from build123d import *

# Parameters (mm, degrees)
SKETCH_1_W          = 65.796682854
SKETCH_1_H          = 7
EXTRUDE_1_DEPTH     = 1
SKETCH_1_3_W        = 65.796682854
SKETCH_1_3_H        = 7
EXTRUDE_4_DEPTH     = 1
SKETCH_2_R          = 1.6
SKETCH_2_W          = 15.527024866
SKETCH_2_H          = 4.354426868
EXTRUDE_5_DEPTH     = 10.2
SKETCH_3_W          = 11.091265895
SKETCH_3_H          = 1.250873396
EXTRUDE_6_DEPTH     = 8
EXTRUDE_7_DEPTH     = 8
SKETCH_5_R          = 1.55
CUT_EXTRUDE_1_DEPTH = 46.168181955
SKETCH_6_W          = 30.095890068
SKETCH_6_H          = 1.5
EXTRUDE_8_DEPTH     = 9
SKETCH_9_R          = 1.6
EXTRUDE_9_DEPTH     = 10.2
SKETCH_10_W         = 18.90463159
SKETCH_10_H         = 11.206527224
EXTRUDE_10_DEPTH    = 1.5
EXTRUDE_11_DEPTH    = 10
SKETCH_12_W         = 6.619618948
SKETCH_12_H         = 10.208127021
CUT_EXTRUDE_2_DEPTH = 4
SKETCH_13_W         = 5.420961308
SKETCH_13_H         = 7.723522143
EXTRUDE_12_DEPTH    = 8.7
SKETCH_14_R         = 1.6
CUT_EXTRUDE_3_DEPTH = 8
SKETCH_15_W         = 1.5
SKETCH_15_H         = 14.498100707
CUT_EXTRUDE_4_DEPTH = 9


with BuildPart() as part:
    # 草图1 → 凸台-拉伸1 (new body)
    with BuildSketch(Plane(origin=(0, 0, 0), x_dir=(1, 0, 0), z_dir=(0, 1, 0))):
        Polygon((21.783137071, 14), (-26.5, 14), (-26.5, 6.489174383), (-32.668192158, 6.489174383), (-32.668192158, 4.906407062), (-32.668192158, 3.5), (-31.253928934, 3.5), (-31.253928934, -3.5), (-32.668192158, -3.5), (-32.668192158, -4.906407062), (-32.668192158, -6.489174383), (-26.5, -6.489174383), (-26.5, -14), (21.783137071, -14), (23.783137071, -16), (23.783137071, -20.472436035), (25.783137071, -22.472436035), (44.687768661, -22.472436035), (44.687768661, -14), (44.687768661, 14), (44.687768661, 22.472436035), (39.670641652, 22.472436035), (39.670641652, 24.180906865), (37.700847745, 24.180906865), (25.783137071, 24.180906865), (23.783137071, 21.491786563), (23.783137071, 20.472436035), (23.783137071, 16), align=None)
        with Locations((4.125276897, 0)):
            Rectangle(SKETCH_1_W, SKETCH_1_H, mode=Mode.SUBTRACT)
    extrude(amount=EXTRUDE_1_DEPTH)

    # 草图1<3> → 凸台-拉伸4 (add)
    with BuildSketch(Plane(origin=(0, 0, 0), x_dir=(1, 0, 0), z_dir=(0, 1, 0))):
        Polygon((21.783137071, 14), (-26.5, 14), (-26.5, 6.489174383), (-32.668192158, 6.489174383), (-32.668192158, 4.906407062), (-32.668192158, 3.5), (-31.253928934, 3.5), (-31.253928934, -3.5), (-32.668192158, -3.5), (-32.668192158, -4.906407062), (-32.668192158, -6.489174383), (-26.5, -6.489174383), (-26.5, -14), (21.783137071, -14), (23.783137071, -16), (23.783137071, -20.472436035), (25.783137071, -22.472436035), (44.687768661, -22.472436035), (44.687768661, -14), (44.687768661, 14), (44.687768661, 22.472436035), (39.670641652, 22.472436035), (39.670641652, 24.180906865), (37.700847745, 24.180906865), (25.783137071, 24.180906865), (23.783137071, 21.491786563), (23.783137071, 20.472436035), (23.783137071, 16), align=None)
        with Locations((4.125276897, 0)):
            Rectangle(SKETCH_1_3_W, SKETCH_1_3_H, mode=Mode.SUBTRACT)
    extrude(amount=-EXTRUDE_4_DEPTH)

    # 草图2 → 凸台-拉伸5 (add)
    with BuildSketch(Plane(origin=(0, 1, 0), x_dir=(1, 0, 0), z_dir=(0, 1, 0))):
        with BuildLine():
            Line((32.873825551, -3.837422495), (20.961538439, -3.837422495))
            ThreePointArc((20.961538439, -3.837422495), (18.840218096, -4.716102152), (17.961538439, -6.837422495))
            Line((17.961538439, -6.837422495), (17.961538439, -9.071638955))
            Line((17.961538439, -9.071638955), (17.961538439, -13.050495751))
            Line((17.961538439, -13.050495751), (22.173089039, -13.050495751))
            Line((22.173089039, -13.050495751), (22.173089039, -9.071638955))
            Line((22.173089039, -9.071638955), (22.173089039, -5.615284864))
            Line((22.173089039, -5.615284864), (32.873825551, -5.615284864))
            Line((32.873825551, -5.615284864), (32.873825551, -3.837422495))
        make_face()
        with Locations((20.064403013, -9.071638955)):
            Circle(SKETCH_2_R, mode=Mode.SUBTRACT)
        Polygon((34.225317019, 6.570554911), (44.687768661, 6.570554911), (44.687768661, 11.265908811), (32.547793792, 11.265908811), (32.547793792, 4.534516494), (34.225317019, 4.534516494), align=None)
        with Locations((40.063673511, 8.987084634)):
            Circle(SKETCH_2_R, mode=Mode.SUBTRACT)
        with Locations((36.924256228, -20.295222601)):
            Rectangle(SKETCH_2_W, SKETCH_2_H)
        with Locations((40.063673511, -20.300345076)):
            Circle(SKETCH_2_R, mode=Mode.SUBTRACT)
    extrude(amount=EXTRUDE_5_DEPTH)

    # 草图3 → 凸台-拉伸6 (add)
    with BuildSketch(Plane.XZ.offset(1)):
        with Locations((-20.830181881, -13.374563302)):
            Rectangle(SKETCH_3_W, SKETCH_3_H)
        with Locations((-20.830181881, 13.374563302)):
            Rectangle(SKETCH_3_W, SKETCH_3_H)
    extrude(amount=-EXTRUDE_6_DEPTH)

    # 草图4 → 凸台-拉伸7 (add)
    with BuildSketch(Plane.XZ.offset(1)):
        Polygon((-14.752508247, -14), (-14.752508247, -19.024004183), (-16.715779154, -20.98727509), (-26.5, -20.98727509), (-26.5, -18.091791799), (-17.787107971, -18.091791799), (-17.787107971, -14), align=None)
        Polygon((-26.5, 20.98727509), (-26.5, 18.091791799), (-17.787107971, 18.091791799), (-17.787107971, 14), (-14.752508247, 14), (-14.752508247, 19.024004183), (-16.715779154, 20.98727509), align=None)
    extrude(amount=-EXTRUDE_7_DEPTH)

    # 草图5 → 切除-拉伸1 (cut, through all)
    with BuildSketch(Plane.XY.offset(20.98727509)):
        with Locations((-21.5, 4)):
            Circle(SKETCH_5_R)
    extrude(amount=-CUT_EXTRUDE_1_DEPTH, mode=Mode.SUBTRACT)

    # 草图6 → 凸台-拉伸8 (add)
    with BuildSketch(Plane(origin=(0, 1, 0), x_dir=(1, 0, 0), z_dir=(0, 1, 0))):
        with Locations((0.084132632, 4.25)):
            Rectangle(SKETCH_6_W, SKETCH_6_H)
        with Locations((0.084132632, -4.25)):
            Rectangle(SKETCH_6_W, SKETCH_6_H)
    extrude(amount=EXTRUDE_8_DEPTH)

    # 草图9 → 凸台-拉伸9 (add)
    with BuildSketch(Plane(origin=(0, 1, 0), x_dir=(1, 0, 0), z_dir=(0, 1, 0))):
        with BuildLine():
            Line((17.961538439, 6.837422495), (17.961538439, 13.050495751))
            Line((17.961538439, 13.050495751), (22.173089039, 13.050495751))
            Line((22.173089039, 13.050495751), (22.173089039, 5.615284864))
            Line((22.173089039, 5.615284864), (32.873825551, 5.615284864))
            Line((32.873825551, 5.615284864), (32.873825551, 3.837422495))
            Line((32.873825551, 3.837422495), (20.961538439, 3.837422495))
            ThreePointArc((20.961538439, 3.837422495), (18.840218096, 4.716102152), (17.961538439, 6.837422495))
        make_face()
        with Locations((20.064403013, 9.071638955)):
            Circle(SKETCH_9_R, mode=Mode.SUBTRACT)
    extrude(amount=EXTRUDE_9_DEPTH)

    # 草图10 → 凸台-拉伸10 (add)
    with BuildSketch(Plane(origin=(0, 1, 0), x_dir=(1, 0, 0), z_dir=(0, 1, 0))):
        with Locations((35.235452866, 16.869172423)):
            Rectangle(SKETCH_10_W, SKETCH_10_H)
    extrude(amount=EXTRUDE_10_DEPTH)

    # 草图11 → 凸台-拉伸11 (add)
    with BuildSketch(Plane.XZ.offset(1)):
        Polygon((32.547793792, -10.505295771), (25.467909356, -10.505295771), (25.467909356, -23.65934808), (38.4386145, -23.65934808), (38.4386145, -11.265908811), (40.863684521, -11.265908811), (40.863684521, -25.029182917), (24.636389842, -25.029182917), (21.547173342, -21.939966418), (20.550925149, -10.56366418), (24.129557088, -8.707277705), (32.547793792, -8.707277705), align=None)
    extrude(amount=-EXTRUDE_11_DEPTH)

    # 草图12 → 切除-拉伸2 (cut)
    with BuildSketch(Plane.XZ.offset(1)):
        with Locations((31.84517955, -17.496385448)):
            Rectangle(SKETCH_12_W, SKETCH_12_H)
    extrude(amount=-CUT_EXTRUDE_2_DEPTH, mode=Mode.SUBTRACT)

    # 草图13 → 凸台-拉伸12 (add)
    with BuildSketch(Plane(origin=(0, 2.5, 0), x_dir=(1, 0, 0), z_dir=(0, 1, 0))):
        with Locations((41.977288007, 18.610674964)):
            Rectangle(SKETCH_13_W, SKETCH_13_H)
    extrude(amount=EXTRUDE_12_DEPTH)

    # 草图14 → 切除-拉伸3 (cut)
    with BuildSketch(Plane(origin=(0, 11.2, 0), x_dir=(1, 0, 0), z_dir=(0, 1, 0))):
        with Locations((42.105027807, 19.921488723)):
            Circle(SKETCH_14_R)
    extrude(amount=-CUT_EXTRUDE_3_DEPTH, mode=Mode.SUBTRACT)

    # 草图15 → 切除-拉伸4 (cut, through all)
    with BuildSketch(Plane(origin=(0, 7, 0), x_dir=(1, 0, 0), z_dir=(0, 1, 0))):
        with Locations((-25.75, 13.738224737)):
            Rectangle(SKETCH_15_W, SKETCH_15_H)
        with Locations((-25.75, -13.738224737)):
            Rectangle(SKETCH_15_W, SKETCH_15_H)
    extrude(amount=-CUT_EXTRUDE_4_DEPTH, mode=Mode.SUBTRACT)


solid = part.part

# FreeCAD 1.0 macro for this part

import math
import FreeCAD as App
import Part
import Sketcher

V = App.Vector
Q = App.Units.Quantity


def add_polygon(sketch, points):
    """Adds a closed chain of lines whose ends are joined by coincident constraints."""
    first, n = sketch.GeometryCount, len(points)
    for a, b in zip(points, points[1:] + points[:1]):
        sketch.addGeometry(Part.LineSegment(App.Vector(*a, 0), App.Vector(*b, 0)), False)
    for i in range(n):
        sketch.addConstraint(Sketcher.Constraint("Coincident", first + i, 2, first + (i + 1) % n, 1))

doc = App.newDocument("Part")
body = doc.addObject("PartDesign::Body", "Body")

# Sketch on XZ plane
sketch1 = body.newObject("Sketcher::SketchObject", "Sketch")
sketch1.AttachmentSupport = (doc.getObject("XZ_Plane"), [""])
sketch1.MapMode = "FlatFace"
add_polygon(sketch1, [(21.8, -14), (-26.5, -14), (-26.5, -6.5), (-32.7, -6.5), (-32.7, -3.5), (-31.3, -3.5), (-31.3, 3.5), (-32.7, 3.5), (-32.7, 6.5), (-26.5, 6.5), (-26.5, 14), (21.8, 14), (23.8, 16), (23.8, 20.5), (25.8, 22.5), (44.7, 22.5), (44.7, -22.5), (39.7, -22.5), (39.7, -24.2), (25.8, -24.2), (23.8, -21.5), (23.8, -16)])  # lines 0-21
add_polygon(sketch1, [(37, 3.5), (-28.8, 3.5), (-28.8, -3.5), (37, -3.5)])  # lines 22-25
sketch1.addConstraint(Sketcher.Constraint("Horizontal", 0))
sketch1.addConstraint(Sketcher.Constraint("Vertical", 1))
sketch1.addConstraint(Sketcher.Constraint("Horizontal", 2))
sketch1.addConstraint(Sketcher.Constraint("Vertical", 3))
sketch1.addConstraint(Sketcher.Constraint("Horizontal", 4))
sketch1.addConstraint(Sketcher.Constraint("Vertical", 5))
sketch1.addConstraint(Sketcher.Constraint("Horizontal", 6))
sketch1.addConstraint(Sketcher.Constraint("Vertical", 7))
sketch1.addConstraint(Sketcher.Constraint("Horizontal", 8))
sketch1.addConstraint(Sketcher.Constraint("Vertical", 9))
sketch1.addConstraint(Sketcher.Constraint("Horizontal", 10))
sketch1.addConstraint(Sketcher.Constraint("Vertical", 12))
sketch1.addConstraint(Sketcher.Constraint("Horizontal", 14))
sketch1.addConstraint(Sketcher.Constraint("Vertical", 15))
sketch1.addConstraint(Sketcher.Constraint("Horizontal", 16))
sketch1.addConstraint(Sketcher.Constraint("Vertical", 17))
sketch1.addConstraint(Sketcher.Constraint("Horizontal", 18))
sketch1.addConstraint(Sketcher.Constraint("Vertical", 20))
sketch1.addConstraint(Sketcher.Constraint("Horizontal", 22))
sketch1.addConstraint(Sketcher.Constraint("Vertical", 23))
sketch1.addConstraint(Sketcher.Constraint("Horizontal", 24))
sketch1.addConstraint(Sketcher.Constraint("Vertical", 25))
sketch1.addConstraint(Sketcher.Constraint("Symmetric", 3, 2, 6, 2, -1))
sketch1.addConstraint(Sketcher.Constraint("Symmetric", 1, 2, 8, 2, -1))
sketch1.addConstraint(Sketcher.Constraint("Symmetric", 11, 2, 20, 2, -1))
sketch1.addConstraint(Sketcher.Constraint("Symmetric", 10, 2, 21, 2, -1))
sketch1.addConstraint(Sketcher.Constraint("Parallel", 11, 13))
sketch1.addConstraint(Sketcher.Constraint("Perpendicular", 13, 21))
sketch1.addConstraint(Sketcher.Constraint("Horizontal", 6, 2, 22, 2))
sketch1.addConstraint(Sketcher.Constraint("Horizontal", 4, 2, 23, 2))
sketch1.addConstraint(Sketcher.Constraint("Vertical", 13, 2, 18, 2))
sketch1.addConstraint(Sketcher.Constraint("Equal", 11, 13))
sketch1.addConstraint(Sketcher.Constraint("DistanceY", 5, 1, 5, 2, Q("7 mm")))
sketch1.addConstraint(Sketcher.Constraint("DistanceY", 0, 2, -1, 1, Q("14 mm")))
sketch1.addConstraint(Sketcher.Constraint("DistanceY", -1, 1, 11, 2, Q("16 mm")))
sketch1.addConstraint(Sketcher.Constraint("DistanceX", 0, 2, -1, 1, Q("26.5 mm")))
sketch1.addConstraint(Sketcher.Constraint("DistanceX", 14, 1, 14, 2, Q("18.904632 mm")))
sketch1.addConstraint(Sketcher.Constraint("DistanceY", 17, 2, 17, 1, Q("1.708471 mm")))
sketch1.addConstraint(Sketcher.Constraint("DistanceX", 0, 2, 0, 1, Q("48.283137 mm")))
sketch1.addConstraint(Sketcher.Constraint("DistanceX", 2, 2, 2, 1, Q("6.168192 mm")))
sketch1.addConstraint(Sketcher.Constraint("DistanceX", 4, 1, 4, 2, Q("1.414263 mm")))
sketch1.addConstraint(Sketcher.Constraint("DistanceX", 16, 2, 16, 1, Q("5.017127 mm")))
sketch1.addConstraint(Sketcher.Constraint("DistanceX", 22, 2, 22, 1, Q("65.796683 mm")))
sketch1.addConstraint(Sketcher.Constraint("DistanceY", 1, 1, 1, 2, Q("7.510826 mm")))
sketch1.addConstraint(Sketcher.Constraint("DistanceY", 12, 1, 12, 2, Q("4.472436 mm")))
sketch1.addConstraint(Sketcher.Constraint("DistanceY", 15, 2, 15, 1, Q("44.944872 mm")))
sketch1.addConstraint(Sketcher.Constraint("DistanceY", 20, 1, 20, 2, Q("5.491787 mm")))
sketch1.addConstraint(Sketcher.Constraint("DistanceX", -1, 1, 24, 2, Q("37.023618 mm")))
pad1 = body.newObject("PartDesign::Pad", "Pad")
pad1.Profile = sketch1
pad1.Length = 1
pad1.Reversed = True

# Sketch on XZ plane
sketch2 = body.newObject("Sketcher::SketchObject", "Sketch001")
sketch2.AttachmentSupport = (doc.getObject("XZ_Plane"), [""])
sketch2.MapMode = "FlatFace"
add_polygon(sketch2, [(21.8, -14), (-26.5, -14), (-26.5, -6.5), (-32.7, -6.5), (-32.7, -3.5), (-31.3, -3.5), (-31.3, 3.5), (-32.7, 3.5), (-32.7, 6.5), (-26.5, 6.5), (-26.5, 14), (21.8, 14), (23.8, 16), (23.8, 20.5), (25.8, 22.5), (44.7, 22.5), (44.7, -22.5), (39.7, -22.5), (39.7, -24.2), (25.8, -24.2), (23.8, -21.5), (23.8, -16)])  # lines 0-21
add_polygon(sketch2, [(37, 3.5), (-28.8, 3.5), (-28.8, -3.5), (37, -3.5)])  # lines 22-25
sketch2.addConstraint(Sketcher.Constraint("Horizontal", 0))
sketch2.addConstraint(Sketcher.Constraint("Vertical", 1))
sketch2.addConstraint(Sketcher.Constraint("Horizontal", 2))
sketch2.addConstraint(Sketcher.Constraint("Vertical", 3))
sketch2.addConstraint(Sketcher.Constraint("Horizontal", 4))
sketch2.addConstraint(Sketcher.Constraint("Vertical", 5))
sketch2.addConstraint(Sketcher.Constraint("Horizontal", 6))
sketch2.addConstraint(Sketcher.Constraint("Vertical", 7))
sketch2.addConstraint(Sketcher.Constraint("Horizontal", 8))
sketch2.addConstraint(Sketcher.Constraint("Vertical", 9))
sketch2.addConstraint(Sketcher.Constraint("Horizontal", 10))
sketch2.addConstraint(Sketcher.Constraint("Vertical", 12))
sketch2.addConstraint(Sketcher.Constraint("Horizontal", 14))
sketch2.addConstraint(Sketcher.Constraint("Vertical", 15))
sketch2.addConstraint(Sketcher.Constraint("Horizontal", 16))
sketch2.addConstraint(Sketcher.Constraint("Vertical", 17))
sketch2.addConstraint(Sketcher.Constraint("Horizontal", 18))
sketch2.addConstraint(Sketcher.Constraint("Vertical", 20))
sketch2.addConstraint(Sketcher.Constraint("Horizontal", 22))
sketch2.addConstraint(Sketcher.Constraint("Vertical", 23))
sketch2.addConstraint(Sketcher.Constraint("Horizontal", 24))
sketch2.addConstraint(Sketcher.Constraint("Vertical", 25))
sketch2.addConstraint(Sketcher.Constraint("Symmetric", 3, 2, 6, 2, -1))
sketch2.addConstraint(Sketcher.Constraint("Symmetric", 1, 2, 8, 2, -1))
sketch2.addConstraint(Sketcher.Constraint("Symmetric", 11, 2, 20, 2, -1))
sketch2.addConstraint(Sketcher.Constraint("Symmetric", 10, 2, 21, 2, -1))
sketch2.addConstraint(Sketcher.Constraint("Parallel", 11, 13))
sketch2.addConstraint(Sketcher.Constraint("Perpendicular", 13, 21))
sketch2.addConstraint(Sketcher.Constraint("Horizontal", 6, 2, 22, 2))
sketch2.addConstraint(Sketcher.Constraint("Horizontal", 4, 2, 23, 2))
sketch2.addConstraint(Sketcher.Constraint("Vertical", 13, 2, 18, 2))
sketch2.addConstraint(Sketcher.Constraint("Equal", 11, 13))
sketch2.addConstraint(Sketcher.Constraint("DistanceY", 5, 1, 5, 2, Q("7 mm")))
sketch2.addConstraint(Sketcher.Constraint("DistanceY", 0, 2, -1, 1, Q("14 mm")))
sketch2.addConstraint(Sketcher.Constraint("DistanceY", -1, 1, 11, 2, Q("16 mm")))
sketch2.addConstraint(Sketcher.Constraint("DistanceX", 0, 2, -1, 1, Q("26.5 mm")))
sketch2.addConstraint(Sketcher.Constraint("DistanceX", 14, 1, 14, 2, Q("18.904632 mm")))
sketch2.addConstraint(Sketcher.Constraint("DistanceY", 17, 2, 17, 1, Q("1.708471 mm")))
sketch2.addConstraint(Sketcher.Constraint("DistanceX", 0, 2, 0, 1, Q("48.283137 mm")))
sketch2.addConstraint(Sketcher.Constraint("DistanceX", 2, 2, 2, 1, Q("6.168192 mm")))
sketch2.addConstraint(Sketcher.Constraint("DistanceX", 4, 1, 4, 2, Q("1.414263 mm")))
sketch2.addConstraint(Sketcher.Constraint("DistanceX", 16, 2, 16, 1, Q("5.017127 mm")))
sketch2.addConstraint(Sketcher.Constraint("DistanceX", 22, 2, 22, 1, Q("65.796683 mm")))
sketch2.addConstraint(Sketcher.Constraint("DistanceY", 1, 1, 1, 2, Q("7.510826 mm")))
sketch2.addConstraint(Sketcher.Constraint("DistanceY", 12, 1, 12, 2, Q("4.472436 mm")))
sketch2.addConstraint(Sketcher.Constraint("DistanceY", 15, 2, 15, 1, Q("44.944872 mm")))
sketch2.addConstraint(Sketcher.Constraint("DistanceY", 20, 1, 20, 2, Q("5.491787 mm")))
sketch2.addConstraint(Sketcher.Constraint("DistanceX", -1, 1, 24, 2, Q("37.023618 mm")))
pad2 = body.newObject("PartDesign::Pad", "Pad001")
pad2.Profile = sketch2
pad2.Length = 1

# Sketch on XZ plane
sketch3 = body.newObject("Sketcher::SketchObject", "Sketch002")
sketch3.AttachmentSupport = (doc.getObject("XZ_Plane"), [""])
sketch3.MapMode = "FlatFace"
sketch3.AttachmentOffset = App.Placement(V(0, 0, -1), App.Rotation())
sketch3.addGeometry(Part.LineSegment(V(32.9, 3.8, 0), V(21, 3.8, 0)), False)  # 0
sketch3.addGeometry(Part.ArcOfCircle(Part.Circle(V(21, 6.8, 0), V(0, 0, 1), 3), math.radians(-180), math.radians(-90)), False)  # 1
sketch3.addGeometry(Part.LineSegment(V(18, 6.8, 0), V(18, 13.1, 0)), False)  # 2
sketch3.addGeometry(Part.LineSegment(V(18, 13.1, 0), V(22.2, 13.1, 0)), False)  # 3
sketch3.addGeometry(Part.LineSegment(V(22.2, 13.1, 0), V(22.2, 5.6, 0)), False)  # 4
sketch3.addGeometry(Part.LineSegment(V(22.2, 5.6, 0), V(32.9, 5.6, 0)), False)  # 5
sketch3.addGeometry(Part.LineSegment(V(32.9, 5.6, 0), V(32.9, 3.8, 0)), False)  # 6
sketch3.addGeometry(Part.Circle(V(20.1, 9.1, 0), V(0, 0, 1), 1.6), False)  # 7
add_polygon(sketch3, [(34.2, -6.6), (44.7, -6.6), (44.7, -11.3), (32.5, -11.3), (32.5, -4.5), (34.2, -4.5)])  # lines 8-13
sketch3.addGeometry(Part.Circle(V(40.1, -9, 0), V(0, 0, 1), 1.6), False)  # 14
add_polygon(sketch3, [(29.2, 18.1), (29.2, 22.5), (44.7, 22.5), (44.7, 18.1)])  # lines 15-18
sketch3.addGeometry(Part.Circle(V(40.1, 20.3, 0), V(0, 0, 1), 1.6), False)  # 19
sketch3.addConstraint(Sketcher.Constraint("Tangent", 0, 2, 1, 2))
sketch3.addConstraint(Sketcher.Constraint("Tangent", 1, 1, 2, 1))
sketch3.addConstraint(Sketcher.Constraint("Coincident", 2, 2, 3, 1))
sketch3.addConstraint(Sketcher.Constraint("Coincident", 3, 2, 4, 1))
sketch3.addConstraint(Sketcher.Constraint("Coincident", 4, 2, 5, 1))
sketch3.addConstraint(Sketcher.Constraint("Coincident", 5, 2, 6, 1))
sketch3.addConstraint(Sketcher.Constraint("Coincident", 6, 2, 0, 1))
sketch3.addConstraint(Sketcher.Constraint("Horizontal", 0))
sketch3.addConstraint(Sketcher.Constraint("Vertical", 2))
sketch3.addConstraint(Sketcher.Constraint("Horizontal", 3))
sketch3.addConstraint(Sketcher.Constraint("Vertical", 4))
sketch3.addConstraint(Sketcher.Constraint("Horizontal", 5))
sketch3.addConstraint(Sketcher.Constraint("Vertical", 6))
sketch3.addConstraint(Sketcher.Constraint("Horizontal", 8))
sketch3.addConstraint(Sketcher.Constraint("Vertical", 9))
sketch3.addConstraint(Sketcher.Constraint("Horizontal", 10))
sketch3.addConstraint(Sketcher.Constraint("Vertical", 11))
sketch3.addConstraint(Sketcher.Constraint("Horizontal", 12))
sketch3.addConstraint(Sketcher.Constraint("Vertical", 13))
sketch3.addConstraint(Sketcher.Constraint("Vertical", 15))
sketch3.addConstraint(Sketcher.Constraint("Horizontal", 16))
sketch3.addConstraint(Sketcher.Constraint("Vertical", 17))
sketch3.addConstraint(Sketcher.Constraint("Horizontal", 18))
sketch3.addConstraint(Sketcher.Constraint("Equal", 7, 14))
sketch3.addConstraint(Sketcher.Constraint("Equal", 14, 19))
sketch3.addConstraint(Sketcher.Constraint("Vertical", 14, 3, 19, 3))
sketch3.addConstraint(Sketcher.Constraint("Vertical", 9, 2, 16, 2))
sketch3.addConstraint(Sketcher.Constraint("Radius", 1, Q("3 mm")))
sketch3.addConstraint(Sketcher.Constraint("Diameter", 7, Q("3.2 mm")))
sketch3.addConstraint(Sketcher.Constraint("DistanceX", 3, 1, 3, 2, Q("4.211551 mm")))
sketch3.addConstraint(Sketcher.Constraint("DistanceX", 8, 1, 8, 2, Q("10.462452 mm")))
sketch3.addConstraint(Sketcher.Constraint("DistanceY", 4, 2, 4, 1, Q("7.435211 mm")))
sketch3.addConstraint(Sketcher.Constraint("DistanceY", 13, 2, 13, 1, Q("2.036038 mm")))
sketch3.addConstraint(Sketcher.Constraint("DistanceY", 11, 2, 5, 2, Q("10.149801 mm")))
sketch3.addConstraint(Sketcher.Constraint("DistanceX", 0, 2, 0, 1, Q("11.912287 mm")))
sketch3.addConstraint(Sketcher.Constraint("DistanceX", 10, 2, 10, 1, Q("12.139975 mm")))
sketch3.addConstraint(Sketcher.Constraint("DistanceX", 16, 1, 16, 2, Q("15.527025 mm")))
sketch3.addConstraint(Sketcher.Constraint("DistanceY", 2, 1, 2, 2, Q("6.213073 mm")))
sketch3.addConstraint(Sketcher.Constraint("DistanceY", 9, 2, 9, 1, Q("4.695354 mm")))
sketch3.addConstraint(Sketcher.Constraint("DistanceY", 15, 1, 15, 2, Q("4.354427 mm")))
sketch3.addConstraint(Sketcher.Constraint("DistanceX", -1, 1, 1, 3, Q("20.961538 mm")))
sketch3.addConstraint(Sketcher.Constraint("DistanceY", -1, 1, 7, 3, Q("9.071639 mm")))
sketch3.addConstraint(Sketcher.Constraint("DistanceX", -1, 1, 8, 2, Q("44.687769 mm")))
sketch3.addConstraint(Sketcher.Constraint("DistanceY", 9, 2, -1, 1, Q("11.265909 mm")))
sketch3.addConstraint(Sketcher.Constraint("DistanceY", -1, 1, 17, 2, Q("18.118009 mm")))
sketch3.addConstraint(Sketcher.Constraint("DistanceX", 7, 3, 14, 3, Q("19.99927 mm")))
sketch3.addConstraint(Sketcher.Constraint("DistanceY", 14, 3, 19, 3, Q("29.28743 mm")))
sketch3.addConstraint(Sketcher.Constraint("DistanceY", 2, 2, 19, 3, Q("7.249849 mm")))
sketch3.addConstraint(Sketcher.Constraint("DistanceX", 10, 2, 14, 3, Q("7.51588 mm")))
pad3 = body.newObject("PartDesign::Pad", "Pad002")
pad3.Profile = sketch3
pad3.Length = 10.2
pad3.Reversed = True

# Sketch on XZ plane
sketch4 = body.newObject("Sketcher::SketchObject", "Sketch003")
sketch4.AttachmentSupport = (doc.getObject("XZ_Plane"), [""])
sketch4.MapMode = "FlatFace"
sketch4.AttachmentOffset = App.Placement(V(0, 0, 1), App.Rotation())
add_polygon(sketch4, [(-26.4, -12.7), (-26.4, -14), (-15.3, -14), (-15.3, -12.7)])  # lines 0-3
add_polygon(sketch4, [(-26.4, 14), (-26.4, 12.7), (-15.3, 12.7), (-15.3, 14)])  # lines 4-7
sketch4.addConstraint(Sketcher.Constraint("Vertical", 0))
sketch4.addConstraint(Sketcher.Constraint("Horizontal", 1))
sketch4.addConstraint(Sketcher.Constraint("Vertical", 2))
sketch4.addConstraint(Sketcher.Constraint("Horizontal", 3))
sketch4.addConstraint(Sketcher.Constraint("Vertical", 4))
sketch4.addConstraint(Sketcher.Constraint("Horizontal", 5))
sketch4.addConstraint(Sketcher.Constraint("Vertical", 6))
sketch4.addConstraint(Sketcher.Constraint("Horizontal", 7))
sketch4.addConstraint(Sketcher.Constraint("Symmetric", 3, 2, 4, 2, -1))
sketch4.addConstraint(Sketcher.Constraint("Symmetric", 1, 2, 6, 2, -1))
sketch4.addConstraint(Sketcher.Constraint("DistanceY", 0, 2, -1, 1, Q("14 mm")))
sketch4.addConstraint(Sketcher.Constraint("DistanceX", 1, 1, 1, 2, Q("11.091266 mm")))
sketch4.addConstraint(Sketcher.Constraint("DistanceY", 0, 2, 0, 1, Q("1.250873 mm")))
sketch4.addConstraint(Sketcher.Constraint("DistanceX", 1, 2, -1, 1, Q("15.284549 mm")))
pad4 = body.newObject("PartDesign::Pad", "Pad003")
pad4.Profile = sketch4
pad4.Length = 8
pad4.Reversed = True

# Sketch on XZ plane
sketch5 = body.newObject("Sketcher::SketchObject", "Sketch004")
sketch5.AttachmentSupport = (doc.getObject("XZ_Plane"), [""])
sketch5.MapMode = "FlatFace"
sketch5.AttachmentOffset = App.Placement(V(0, 0, 1), App.Rotation())
add_polygon(sketch5, [(-14.8, -19), (-14.8, -14), (-17.8, -14), (-17.8, -18.1), (-26.5, -18.1), (-26.5, -21), (-16.7, -21)])  # lines 0-6
add_polygon(sketch5, [(-26.5, 21), (-26.5, 18.1), (-17.8, 18.1), (-17.8, 14), (-14.8, 14), (-14.8, 19), (-16.7, 21)])  # lines 7-13
sketch5.addConstraint(Sketcher.Constraint("Vertical", 0))
sketch5.addConstraint(Sketcher.Constraint("Horizontal", 1))
sketch5.addConstraint(Sketcher.Constraint("Vertical", 2))
sketch5.addConstraint(Sketcher.Constraint("Horizontal", 3))
sketch5.addConstraint(Sketcher.Constraint("Vertical", 4))
sketch5.addConstraint(Sketcher.Constraint("Horizontal", 5))
sketch5.addConstraint(Sketcher.Constraint("Vertical", 7))
sketch5.addConstraint(Sketcher.Constraint("Horizontal", 8))
sketch5.addConstraint(Sketcher.Constraint("Vertical", 9))
sketch5.addConstraint(Sketcher.Constraint("Horizontal", 10))
sketch5.addConstraint(Sketcher.Constraint("Vertical", 11))
sketch5.addConstraint(Sketcher.Constraint("Horizontal", 13))
sketch5.addConstraint(Sketcher.Constraint("Symmetric", 3, 2, 7, 2, -1))
sketch5.addConstraint(Sketcher.Constraint("Symmetric", 1, 2, 9, 2, -1))
sketch5.addConstraint(Sketcher.Constraint("Symmetric", 6, 2, 11, 2, -1))
sketch5.addConstraint(Sketcher.Constraint("Symmetric", 5, 2, 12, 2, -1))
sketch5.addConstraint(Sketcher.Constraint("Perpendicular", 6, 12))
sketch5.addConstraint(Sketcher.Constraint("DistanceY", 0, 2, -1, 1, Q("14 mm")))
sketch5.addConstraint(Sketcher.Constraint("DistanceX", 3, 2, -1, 1, Q("26.5 mm")))
sketch5.addConstraint(Sketcher.Constraint("DistanceX", 1, 2, 1, 1, Q("3.0346 mm")))
sketch5.addConstraint(Sketcher.Constraint("DistanceX", 5, 1, 5, 2, Q("9.784221 mm")))
sketch5.addConstraint(Sketcher.Constraint("DistanceY", 2, 2, 2, 1, Q("4.091792 mm")))
sketch5.addConstraint(Sketcher.Constraint("DistanceX", 3, 2, 3, 1, Q("8.712892 mm")))
sketch5.addConstraint(Sketcher.Constraint("DistanceY", 0, 1, 0, 2, Q("5.024004 mm")))
pad5 = body.newObject("PartDesign::Pad", "Pad004")
pad5.Profile = sketch5
pad5.Length = 8
pad5.Reversed = True

# Sketch on XY plane
sketch6 = body.newObject("Sketcher::SketchObject", "Sketch005")
sketch6.AttachmentSupport = (doc.getObject("XY_Plane"), [""])
sketch6.MapMode = "FlatFace"
sketch6.AttachmentOffset = App.Placement(V(0, 0, 20.987275), App.Rotation())
sketch6.addGeometry(Part.Circle(V(-21.5, 4, 0), V(0, 0, 1), 1.6), False)
sketch6.addConstraint(Sketcher.Constraint("Diameter", 0, Q("3.1 mm")))
sketch6.addConstraint(Sketcher.Constraint("DistanceY", -1, 1, 0, 3, Q("4 mm")))
sketch6.addConstraint(Sketcher.Constraint("DistanceX", 0, 3, -1, 1, Q("21.5 mm")))
pocket1 = body.newObject("PartDesign::Pocket", "Pocket")
pocket1.Profile = sketch6
pocket1.Type = "ThroughAll"

# Sketch on XZ plane
sketch7 = body.newObject("Sketcher::SketchObject", "Sketch006")
sketch7.AttachmentSupport = (doc.getObject("XZ_Plane"), [""])
sketch7.MapMode = "FlatFace"
sketch7.AttachmentOffset = App.Placement(V(0, 0, -1), App.Rotation())
add_polygon(sketch7, [(-15, -5), (-15, -3.5), (15.1, -3.5), (15.1, -5)])  # lines 0-3
add_polygon(sketch7, [(-15, 3.5), (-15, 5), (15.1, 5), (15.1, 3.5)])  # lines 4-7
sketch7.addConstraint(Sketcher.Constraint("Vertical", 0))
sketch7.addConstraint(Sketcher.Constraint("Horizontal", 1))
sketch7.addConstraint(Sketcher.Constraint("Vertical", 2))
sketch7.addConstraint(Sketcher.Constraint("Horizontal", 3))
sketch7.addConstraint(Sketcher.Constraint("Vertical", 4))
sketch7.addConstraint(Sketcher.Constraint("Horizontal", 5))
sketch7.addConstraint(Sketcher.Constraint("Vertical", 6))
sketch7.addConstraint(Sketcher.Constraint("Horizontal", 7))
sketch7.addConstraint(Sketcher.Constraint("Symmetric", 3, 2, 4, 2, -1))
sketch7.addConstraint(Sketcher.Constraint("Symmetric", 1, 2, 6, 2, -1))
sketch7.addConstraint(Sketcher.Constraint("DistanceY", 0, 1, 0, 2, Q("1.5 mm")))
sketch7.addConstraint(Sketcher.Constraint("DistanceY", 2, 2, -1, 1, Q("5 mm")))
sketch7.addConstraint(Sketcher.Constraint("DistanceX", 1, 1, 1, 2, Q("30.09589 mm")))
sketch7.addConstraint(Sketcher.Constraint("DistanceX", 0, 2, -1, 1, Q("14.963812 mm")))
pad6 = body.newObject("PartDesign::Pad", "Pad005")
pad6.Profile = sketch7
pad6.Length = 9
pad6.Reversed = True

# Sketch on XZ plane
sketch8 = body.newObject("Sketcher::SketchObject", "Sketch007")
sketch8.AttachmentSupport = (doc.getObject("XZ_Plane"), [""])
sketch8.MapMode = "FlatFace"
sketch8.AttachmentOffset = App.Placement(V(0, 0, -1), App.Rotation())
sketch8.addGeometry(Part.LineSegment(V(18, -13.1, 0), V(18, -6.8, 0)), False)
sketch8.addGeometry(Part.ArcOfCircle(Part.Circle(V(21, -6.8, 0), V(0, 0, 1), 3), math.radians(90), math.radians(180)), False)
sketch8.addGeometry(Part.LineSegment(V(21, -3.8, 0), V(32.9, -3.8, 0)), False)
sketch8.addGeometry(Part.LineSegment(V(32.9, -3.8, 0), V(32.9, -5.6, 0)), False)
sketch8.addGeometry(Part.LineSegment(V(32.9, -5.6, 0), V(22.2, -5.6, 0)), False)
sketch8.addGeometry(Part.LineSegment(V(22.2, -5.6, 0), V(22.2, -13.1, 0)), False)
sketch8.addGeometry(Part.LineSegment(V(22.2, -13.1, 0), V(18, -13.1, 0)), False)
sketch8.addGeometry(Part.Circle(V(20.1, -9.1, 0), V(0, 0, 1), 1.6), False)
sketch8.addConstraint(Sketcher.Constraint("Tangent", 0, 2, 1, 2))
sketch8.addConstraint(Sketcher.Constraint("Tangent", 1, 1, 2, 1))
sketch8.addConstraint(Sketcher.Constraint("Coincident", 2, 2, 3, 1))
sketch8.addConstraint(Sketcher.Constraint("Coincident", 3, 2, 4, 1))
sketch8.addConstraint(Sketcher.Constraint("Coincident", 4, 2, 5, 1))
sketch8.addConstraint(Sketcher.Constraint("Coincident", 5, 2, 6, 1))
sketch8.addConstraint(Sketcher.Constraint("Coincident", 6, 2, 0, 1))
sketch8.addConstraint(Sketcher.Constraint("Vertical", 0))
sketch8.addConstraint(Sketcher.Constraint("Horizontal", 2))
sketch8.addConstraint(Sketcher.Constraint("Vertical", 3))
sketch8.addConstraint(Sketcher.Constraint("Horizontal", 4))
sketch8.addConstraint(Sketcher.Constraint("Vertical", 5))
sketch8.addConstraint(Sketcher.Constraint("Horizontal", 6))
sketch8.addConstraint(Sketcher.Constraint("Radius", 1, Q("3 mm")))
sketch8.addConstraint(Sketcher.Constraint("Diameter", 7, Q("3.2 mm")))
sketch8.addConstraint(Sketcher.Constraint("DistanceX", 6, 2, 6, 1, Q("4.211551 mm")))
sketch8.addConstraint(Sketcher.Constraint("DistanceY", 5, 2, 5, 1, Q("7.435211 mm")))
sketch8.addConstraint(Sketcher.Constraint("DistanceX", 2, 1, 2, 2, Q("11.912287 mm")))
sketch8.addConstraint(Sketcher.Constraint("DistanceY", 0, 1, 0, 2, Q("6.213073 mm")))
sketch8.addConstraint(Sketcher.Constraint("DistanceX", -1, 1, 1, 3, Q("20.961538 mm")))
sketch8.addConstraint(Sketcher.Constraint("DistanceY", 7, 3, -1, 1, Q("9.071639 mm")))
sketch8.addConstraint(Sketcher.Constraint("DistanceY", 1, 3, -1, 1, Q("6.837422 mm")))
sketch8.addConstraint(Sketcher.Constraint("DistanceX", -1, 1, 7, 3, Q("20.064403 mm")))
pad7 = body.newObject("PartDesign::Pad", "Pad006")
pad7.Profile = sketch8
pad7.Length = 10.2
pad7.Reversed = True

# Sketch on XZ plane
sketch9 = body.newObject("Sketcher::SketchObject", "Sketch008")
sketch9.AttachmentSupport = (doc.getObject("XZ_Plane"), [""])
sketch9.MapMode = "FlatFace"
sketch9.AttachmentOffset = App.Placement(V(0, 0, -1), App.Rotation())
add_polygon(sketch9, [(26, -22), (26, -11), (45, -11), (45, -22)])  # lines 0-3
sketch9.addConstraint(Sketcher.Constraint("Vertical", 0))
sketch9.addConstraint(Sketcher.Constraint("Horizontal", 1))
sketch9.addConstraint(Sketcher.Constraint("Vertical", 2))
sketch9.addConstraint(Sketcher.Constraint("Horizontal", 3))
sketch9.addConstraint(Sketcher.Constraint("DistanceX", 1, 1, 1, 2, Q("18.904632 mm")))
sketch9.addConstraint(Sketcher.Constraint("DistanceY", 0, 1, 0, 2, Q("11.206527 mm")))
sketch9.addConstraint(Sketcher.Constraint("DistanceY", 0, 2, -1, 1, Q("11.265909 mm")))
sketch9.addConstraint(Sketcher.Constraint("DistanceX", -1, 1, 1, 2, Q("44.687769 mm")))
pad8 = body.newObject("PartDesign::Pad", "Pad007")
pad8.Profile = sketch9
pad8.Length = 1.5
pad8.Reversed = True

# Sketch on XZ plane
sketch10 = body.newObject("Sketcher::SketchObject", "Sketch009")
sketch10.AttachmentSupport = (doc.getObject("XZ_Plane"), [""])
sketch10.MapMode = "FlatFace"
sketch10.AttachmentOffset = App.Placement(V(0, 0, 1), App.Rotation())
add_polygon(sketch10, [(25.5, -10.5), (32.5, -10.5), (32.5, -8.7), (24.1, -8.7), (20.6, -10.6), (21.5, -21.9), (24.6, -25), (40.9, -25), (40.9, -11.3), (38.4, -11.3), (38.4, -23.7), (25.5, -23.7)])  # lines 0-11
sketch10.addConstraint(Sketcher.Constraint("Horizontal", 0))
sketch10.addConstraint(Sketcher.Constraint("Vertical", 1))
sketch10.addConstraint(Sketcher.Constraint("Horizontal", 2))
sketch10.addConstraint(Sketcher.Constraint("Horizontal", 6))
sketch10.addConstraint(Sketcher.Constraint("Vertical", 7))
sketch10.addConstraint(Sketcher.Constraint("Horizontal", 8))
sketch10.addConstraint(Sketcher.Constraint("Vertical", 9))
sketch10.addConstraint(Sketcher.Constraint("Horizontal", 10))
sketch10.addConstraint(Sketcher.Constraint("Vertical", 11))
sketch10.addConstraint(Sketcher.Constraint("Angle", 5, Q("-45 deg")))
sketch10.addConstraint(Sketcher.Constraint("DistanceX", 8, 2, 8, 1, Q("2.42507 mm")))
sketch10.addConstraint(Sketcher.Constraint("DistanceY", 1, 1, 1, 2, Q("1.798018 mm")))
sketch10.addConstraint(Sketcher.Constraint("DistanceY", 9, 2, 9, 1, Q("12.393439 mm")))
sketch10.addConstraint(Sketcher.Constraint("Distance", 4, Q("11.419841 mm")))
sketch10.addConstraint(Sketcher.Constraint("Distance", 5, Q("4.368812 mm")))
sketch10.addConstraint(Sketcher.Constraint("DistanceX", 0, 1, 0, 2, Q("7.079884 mm")))
sketch10.addConstraint(Sketcher.Constraint("DistanceX", 2, 2, 2, 1, Q("8.418237 mm")))
sketch10.addConstraint(Sketcher.Constraint("DistanceX", 6, 1, 6, 2, Q("16.227295 mm")))
sketch10.addConstraint(Sketcher.Constraint("DistanceX", 10, 2, 10, 1, Q("12.970705 mm")))
sketch10.addConstraint(Sketcher.Constraint("DistanceY", 7, 1, 7, 2, Q("13.763274 mm")))
sketch10.addConstraint(Sketcher.Constraint("DistanceY", 11, 1, 11, 2, Q("13.154052 mm")))
sketch10.addConstraint(Sketcher.Constraint("DistanceX", -1, 1, 5, 2, Q("24.63639 mm")))
sketch10.addConstraint(Sketcher.Constraint("DistanceY", 7, 2, -1, 1, Q("11.265909 mm")))
sketch10.addConstraint(Sketcher.Constraint("DistanceX", 3, 2, 2, 2, Q("3.578632 mm")))
pad9 = body.newObject("PartDesign::Pad", "Pad008")
pad9.Profile = sketch10
pad9.Length = 10
pad9.Reversed = True

# Sketch on XZ plane
sketch11 = body.newObject("Sketcher::SketchObject", "Sketch010")
sketch11.AttachmentSupport = (doc.getObject("XZ_Plane"), [""])
sketch11.MapMode = "FlatFace"
sketch11.AttachmentOffset = App.Placement(V(0, 0, 1), App.Rotation())
add_polygon(sketch11, [(29, -12), (29, -23), (35, -23), (35, -12)])  # lines 0-3
sketch11.addConstraint(Sketcher.Constraint("Vertical", 0))
sketch11.addConstraint(Sketcher.Constraint("Horizontal", 1))
sketch11.addConstraint(Sketcher.Constraint("Vertical", 2))
sketch11.addConstraint(Sketcher.Constraint("Horizontal", 3))
sketch11.addConstraint(Sketcher.Constraint("DistanceX", 1, 1, 1, 2, Q("6.619619 mm")))
sketch11.addConstraint(Sketcher.Constraint("DistanceY", 0, 2, 0, 1, Q("10.208127 mm")))
sketch11.addConstraint(Sketcher.Constraint("DistanceX", -1, 1, 0, 2, Q("28.53537 mm")))
sketch11.addConstraint(Sketcher.Constraint("DistanceY", 0, 2, -1, 1, Q("22.600449 mm")))
pocket2 = body.newObject("PartDesign::Pocket", "Pocket001")
pocket2.Profile = sketch11
pocket2.Length = 4

# Sketch on XZ plane
sketch12 = body.newObject("Sketcher::SketchObject", "Sketch011")
sketch12.AttachmentSupport = (doc.getObject("XZ_Plane"), [""])
sketch12.MapMode = "FlatFace"
sketch12.AttachmentOffset = App.Placement(V(0, 0, -2.5), App.Rotation())
add_polygon(sketch12, [(39, -22), (39, -15), (45, -15), (45, -22)])  # lines 0-3
sketch12.addConstraint(Sketcher.Constraint("Vertical", 0))
sketch12.addConstraint(Sketcher.Constraint("Horizontal", 1))
sketch12.addConstraint(Sketcher.Constraint("Vertical", 2))
sketch12.addConstraint(Sketcher.Constraint("Horizontal", 3))
sketch12.addConstraint(Sketcher.Constraint("DistanceX", 1, 1, 1, 2, Q("5.420961 mm")))
sketch12.addConstraint(Sketcher.Constraint("DistanceY", 0, 1, 0, 2, Q("7.723522 mm")))
sketch12.addConstraint(Sketcher.Constraint("DistanceX", -1, 1, 1, 2, Q("44.687769 mm")))
sketch12.addConstraint(Sketcher.Constraint("DistanceY", 0, 2, -1, 1, Q("14.748914 mm")))
pad10 = body.newObject("PartDesign::Pad", "Pad009")
pad10.Profile = sketch12
pad10.Length = 8.7
pad10.Reversed = True

# Sketch on XZ plane
sketch13 = body.newObject("Sketcher::SketchObject", "Sketch012")
sketch13.AttachmentSupport = (doc.getObject("XZ_Plane"), [""])
sketch13.MapMode = "FlatFace"
sketch13.AttachmentOffset = App.Placement(V(0, 0, -11.2), App.Rotation())
sketch13.addGeometry(Part.Circle(V(42.1, -19.9, 0), V(0, 0, 1), 1.6), False)
sketch13.addConstraint(Sketcher.Constraint("Diameter", 0, Q("3.2 mm")))
sketch13.addConstraint(Sketcher.Constraint("DistanceY", 0, 3, -1, 1, Q("19.921489 mm")))
sketch13.addConstraint(Sketcher.Constraint("DistanceX", -1, 1, 0, 3, Q("42.105028 mm")))
pocket3 = body.newObject("PartDesign::Pocket", "Pocket002")
pocket3.Profile = sketch13
pocket3.Length = 8
pocket3.Reversed = True

# Sketch on XZ plane
sketch14 = body.newObject("Sketcher::SketchObject", "Sketch013")
sketch14.AttachmentSupport = (doc.getObject("XZ_Plane"), [""])
sketch14.MapMode = "FlatFace"
sketch14.AttachmentOffset = App.Placement(V(0, 0, -7), App.Rotation())
add_polygon(sketch14, [(-26.5, -21), (-26.5, -6.5), (-25, -6.5), (-25, -21)])  # lines 0-3
add_polygon(sketch14, [(-26.5, 6.5), (-26.5, 21), (-25, 21), (-25, 6.5)])  # lines 4-7
sketch14.addConstraint(Sketcher.Constraint("Vertical", 0))
sketch14.addConstraint(Sketcher.Constraint("Horizontal", 1))
sketch14.addConstraint(Sketcher.Constraint("Vertical", 2))
sketch14.addConstraint(Sketcher.Constraint("Horizontal", 3))
sketch14.addConstraint(Sketcher.Constraint("Vertical", 4))
sketch14.addConstraint(Sketcher.Constraint("Horizontal", 5))
sketch14.addConstraint(Sketcher.Constraint("Vertical", 6))
sketch14.addConstraint(Sketcher.Constraint("Horizontal", 7))
sketch14.addConstraint(Sketcher.Constraint("Symmetric", 3, 2, 4, 2, -1))
sketch14.addConstraint(Sketcher.Constraint("Symmetric", 1, 2, 6, 2, -1))
sketch14.addConstraint(Sketcher.Constraint("DistanceX", 1, 1, 1, 2, Q("1.5 mm")))
sketch14.addConstraint(Sketcher.Constraint("DistanceX", 1, 2, -1, 1, Q("25 mm")))
sketch14.addConstraint(Sketcher.Constraint("DistanceY", 0, 1, 0, 2, Q("14.498101 mm")))
sketch14.addConstraint(Sketcher.Constraint("DistanceY", 0, 2, 4, 2, Q("27.476449 mm")))
pocket4 = body.newObject("PartDesign::Pocket", "Pocket003")
pocket4.Profile = sketch14
pocket4.Type = "ThroughAll"
pocket4.Reversed = True

doc.recompute()
